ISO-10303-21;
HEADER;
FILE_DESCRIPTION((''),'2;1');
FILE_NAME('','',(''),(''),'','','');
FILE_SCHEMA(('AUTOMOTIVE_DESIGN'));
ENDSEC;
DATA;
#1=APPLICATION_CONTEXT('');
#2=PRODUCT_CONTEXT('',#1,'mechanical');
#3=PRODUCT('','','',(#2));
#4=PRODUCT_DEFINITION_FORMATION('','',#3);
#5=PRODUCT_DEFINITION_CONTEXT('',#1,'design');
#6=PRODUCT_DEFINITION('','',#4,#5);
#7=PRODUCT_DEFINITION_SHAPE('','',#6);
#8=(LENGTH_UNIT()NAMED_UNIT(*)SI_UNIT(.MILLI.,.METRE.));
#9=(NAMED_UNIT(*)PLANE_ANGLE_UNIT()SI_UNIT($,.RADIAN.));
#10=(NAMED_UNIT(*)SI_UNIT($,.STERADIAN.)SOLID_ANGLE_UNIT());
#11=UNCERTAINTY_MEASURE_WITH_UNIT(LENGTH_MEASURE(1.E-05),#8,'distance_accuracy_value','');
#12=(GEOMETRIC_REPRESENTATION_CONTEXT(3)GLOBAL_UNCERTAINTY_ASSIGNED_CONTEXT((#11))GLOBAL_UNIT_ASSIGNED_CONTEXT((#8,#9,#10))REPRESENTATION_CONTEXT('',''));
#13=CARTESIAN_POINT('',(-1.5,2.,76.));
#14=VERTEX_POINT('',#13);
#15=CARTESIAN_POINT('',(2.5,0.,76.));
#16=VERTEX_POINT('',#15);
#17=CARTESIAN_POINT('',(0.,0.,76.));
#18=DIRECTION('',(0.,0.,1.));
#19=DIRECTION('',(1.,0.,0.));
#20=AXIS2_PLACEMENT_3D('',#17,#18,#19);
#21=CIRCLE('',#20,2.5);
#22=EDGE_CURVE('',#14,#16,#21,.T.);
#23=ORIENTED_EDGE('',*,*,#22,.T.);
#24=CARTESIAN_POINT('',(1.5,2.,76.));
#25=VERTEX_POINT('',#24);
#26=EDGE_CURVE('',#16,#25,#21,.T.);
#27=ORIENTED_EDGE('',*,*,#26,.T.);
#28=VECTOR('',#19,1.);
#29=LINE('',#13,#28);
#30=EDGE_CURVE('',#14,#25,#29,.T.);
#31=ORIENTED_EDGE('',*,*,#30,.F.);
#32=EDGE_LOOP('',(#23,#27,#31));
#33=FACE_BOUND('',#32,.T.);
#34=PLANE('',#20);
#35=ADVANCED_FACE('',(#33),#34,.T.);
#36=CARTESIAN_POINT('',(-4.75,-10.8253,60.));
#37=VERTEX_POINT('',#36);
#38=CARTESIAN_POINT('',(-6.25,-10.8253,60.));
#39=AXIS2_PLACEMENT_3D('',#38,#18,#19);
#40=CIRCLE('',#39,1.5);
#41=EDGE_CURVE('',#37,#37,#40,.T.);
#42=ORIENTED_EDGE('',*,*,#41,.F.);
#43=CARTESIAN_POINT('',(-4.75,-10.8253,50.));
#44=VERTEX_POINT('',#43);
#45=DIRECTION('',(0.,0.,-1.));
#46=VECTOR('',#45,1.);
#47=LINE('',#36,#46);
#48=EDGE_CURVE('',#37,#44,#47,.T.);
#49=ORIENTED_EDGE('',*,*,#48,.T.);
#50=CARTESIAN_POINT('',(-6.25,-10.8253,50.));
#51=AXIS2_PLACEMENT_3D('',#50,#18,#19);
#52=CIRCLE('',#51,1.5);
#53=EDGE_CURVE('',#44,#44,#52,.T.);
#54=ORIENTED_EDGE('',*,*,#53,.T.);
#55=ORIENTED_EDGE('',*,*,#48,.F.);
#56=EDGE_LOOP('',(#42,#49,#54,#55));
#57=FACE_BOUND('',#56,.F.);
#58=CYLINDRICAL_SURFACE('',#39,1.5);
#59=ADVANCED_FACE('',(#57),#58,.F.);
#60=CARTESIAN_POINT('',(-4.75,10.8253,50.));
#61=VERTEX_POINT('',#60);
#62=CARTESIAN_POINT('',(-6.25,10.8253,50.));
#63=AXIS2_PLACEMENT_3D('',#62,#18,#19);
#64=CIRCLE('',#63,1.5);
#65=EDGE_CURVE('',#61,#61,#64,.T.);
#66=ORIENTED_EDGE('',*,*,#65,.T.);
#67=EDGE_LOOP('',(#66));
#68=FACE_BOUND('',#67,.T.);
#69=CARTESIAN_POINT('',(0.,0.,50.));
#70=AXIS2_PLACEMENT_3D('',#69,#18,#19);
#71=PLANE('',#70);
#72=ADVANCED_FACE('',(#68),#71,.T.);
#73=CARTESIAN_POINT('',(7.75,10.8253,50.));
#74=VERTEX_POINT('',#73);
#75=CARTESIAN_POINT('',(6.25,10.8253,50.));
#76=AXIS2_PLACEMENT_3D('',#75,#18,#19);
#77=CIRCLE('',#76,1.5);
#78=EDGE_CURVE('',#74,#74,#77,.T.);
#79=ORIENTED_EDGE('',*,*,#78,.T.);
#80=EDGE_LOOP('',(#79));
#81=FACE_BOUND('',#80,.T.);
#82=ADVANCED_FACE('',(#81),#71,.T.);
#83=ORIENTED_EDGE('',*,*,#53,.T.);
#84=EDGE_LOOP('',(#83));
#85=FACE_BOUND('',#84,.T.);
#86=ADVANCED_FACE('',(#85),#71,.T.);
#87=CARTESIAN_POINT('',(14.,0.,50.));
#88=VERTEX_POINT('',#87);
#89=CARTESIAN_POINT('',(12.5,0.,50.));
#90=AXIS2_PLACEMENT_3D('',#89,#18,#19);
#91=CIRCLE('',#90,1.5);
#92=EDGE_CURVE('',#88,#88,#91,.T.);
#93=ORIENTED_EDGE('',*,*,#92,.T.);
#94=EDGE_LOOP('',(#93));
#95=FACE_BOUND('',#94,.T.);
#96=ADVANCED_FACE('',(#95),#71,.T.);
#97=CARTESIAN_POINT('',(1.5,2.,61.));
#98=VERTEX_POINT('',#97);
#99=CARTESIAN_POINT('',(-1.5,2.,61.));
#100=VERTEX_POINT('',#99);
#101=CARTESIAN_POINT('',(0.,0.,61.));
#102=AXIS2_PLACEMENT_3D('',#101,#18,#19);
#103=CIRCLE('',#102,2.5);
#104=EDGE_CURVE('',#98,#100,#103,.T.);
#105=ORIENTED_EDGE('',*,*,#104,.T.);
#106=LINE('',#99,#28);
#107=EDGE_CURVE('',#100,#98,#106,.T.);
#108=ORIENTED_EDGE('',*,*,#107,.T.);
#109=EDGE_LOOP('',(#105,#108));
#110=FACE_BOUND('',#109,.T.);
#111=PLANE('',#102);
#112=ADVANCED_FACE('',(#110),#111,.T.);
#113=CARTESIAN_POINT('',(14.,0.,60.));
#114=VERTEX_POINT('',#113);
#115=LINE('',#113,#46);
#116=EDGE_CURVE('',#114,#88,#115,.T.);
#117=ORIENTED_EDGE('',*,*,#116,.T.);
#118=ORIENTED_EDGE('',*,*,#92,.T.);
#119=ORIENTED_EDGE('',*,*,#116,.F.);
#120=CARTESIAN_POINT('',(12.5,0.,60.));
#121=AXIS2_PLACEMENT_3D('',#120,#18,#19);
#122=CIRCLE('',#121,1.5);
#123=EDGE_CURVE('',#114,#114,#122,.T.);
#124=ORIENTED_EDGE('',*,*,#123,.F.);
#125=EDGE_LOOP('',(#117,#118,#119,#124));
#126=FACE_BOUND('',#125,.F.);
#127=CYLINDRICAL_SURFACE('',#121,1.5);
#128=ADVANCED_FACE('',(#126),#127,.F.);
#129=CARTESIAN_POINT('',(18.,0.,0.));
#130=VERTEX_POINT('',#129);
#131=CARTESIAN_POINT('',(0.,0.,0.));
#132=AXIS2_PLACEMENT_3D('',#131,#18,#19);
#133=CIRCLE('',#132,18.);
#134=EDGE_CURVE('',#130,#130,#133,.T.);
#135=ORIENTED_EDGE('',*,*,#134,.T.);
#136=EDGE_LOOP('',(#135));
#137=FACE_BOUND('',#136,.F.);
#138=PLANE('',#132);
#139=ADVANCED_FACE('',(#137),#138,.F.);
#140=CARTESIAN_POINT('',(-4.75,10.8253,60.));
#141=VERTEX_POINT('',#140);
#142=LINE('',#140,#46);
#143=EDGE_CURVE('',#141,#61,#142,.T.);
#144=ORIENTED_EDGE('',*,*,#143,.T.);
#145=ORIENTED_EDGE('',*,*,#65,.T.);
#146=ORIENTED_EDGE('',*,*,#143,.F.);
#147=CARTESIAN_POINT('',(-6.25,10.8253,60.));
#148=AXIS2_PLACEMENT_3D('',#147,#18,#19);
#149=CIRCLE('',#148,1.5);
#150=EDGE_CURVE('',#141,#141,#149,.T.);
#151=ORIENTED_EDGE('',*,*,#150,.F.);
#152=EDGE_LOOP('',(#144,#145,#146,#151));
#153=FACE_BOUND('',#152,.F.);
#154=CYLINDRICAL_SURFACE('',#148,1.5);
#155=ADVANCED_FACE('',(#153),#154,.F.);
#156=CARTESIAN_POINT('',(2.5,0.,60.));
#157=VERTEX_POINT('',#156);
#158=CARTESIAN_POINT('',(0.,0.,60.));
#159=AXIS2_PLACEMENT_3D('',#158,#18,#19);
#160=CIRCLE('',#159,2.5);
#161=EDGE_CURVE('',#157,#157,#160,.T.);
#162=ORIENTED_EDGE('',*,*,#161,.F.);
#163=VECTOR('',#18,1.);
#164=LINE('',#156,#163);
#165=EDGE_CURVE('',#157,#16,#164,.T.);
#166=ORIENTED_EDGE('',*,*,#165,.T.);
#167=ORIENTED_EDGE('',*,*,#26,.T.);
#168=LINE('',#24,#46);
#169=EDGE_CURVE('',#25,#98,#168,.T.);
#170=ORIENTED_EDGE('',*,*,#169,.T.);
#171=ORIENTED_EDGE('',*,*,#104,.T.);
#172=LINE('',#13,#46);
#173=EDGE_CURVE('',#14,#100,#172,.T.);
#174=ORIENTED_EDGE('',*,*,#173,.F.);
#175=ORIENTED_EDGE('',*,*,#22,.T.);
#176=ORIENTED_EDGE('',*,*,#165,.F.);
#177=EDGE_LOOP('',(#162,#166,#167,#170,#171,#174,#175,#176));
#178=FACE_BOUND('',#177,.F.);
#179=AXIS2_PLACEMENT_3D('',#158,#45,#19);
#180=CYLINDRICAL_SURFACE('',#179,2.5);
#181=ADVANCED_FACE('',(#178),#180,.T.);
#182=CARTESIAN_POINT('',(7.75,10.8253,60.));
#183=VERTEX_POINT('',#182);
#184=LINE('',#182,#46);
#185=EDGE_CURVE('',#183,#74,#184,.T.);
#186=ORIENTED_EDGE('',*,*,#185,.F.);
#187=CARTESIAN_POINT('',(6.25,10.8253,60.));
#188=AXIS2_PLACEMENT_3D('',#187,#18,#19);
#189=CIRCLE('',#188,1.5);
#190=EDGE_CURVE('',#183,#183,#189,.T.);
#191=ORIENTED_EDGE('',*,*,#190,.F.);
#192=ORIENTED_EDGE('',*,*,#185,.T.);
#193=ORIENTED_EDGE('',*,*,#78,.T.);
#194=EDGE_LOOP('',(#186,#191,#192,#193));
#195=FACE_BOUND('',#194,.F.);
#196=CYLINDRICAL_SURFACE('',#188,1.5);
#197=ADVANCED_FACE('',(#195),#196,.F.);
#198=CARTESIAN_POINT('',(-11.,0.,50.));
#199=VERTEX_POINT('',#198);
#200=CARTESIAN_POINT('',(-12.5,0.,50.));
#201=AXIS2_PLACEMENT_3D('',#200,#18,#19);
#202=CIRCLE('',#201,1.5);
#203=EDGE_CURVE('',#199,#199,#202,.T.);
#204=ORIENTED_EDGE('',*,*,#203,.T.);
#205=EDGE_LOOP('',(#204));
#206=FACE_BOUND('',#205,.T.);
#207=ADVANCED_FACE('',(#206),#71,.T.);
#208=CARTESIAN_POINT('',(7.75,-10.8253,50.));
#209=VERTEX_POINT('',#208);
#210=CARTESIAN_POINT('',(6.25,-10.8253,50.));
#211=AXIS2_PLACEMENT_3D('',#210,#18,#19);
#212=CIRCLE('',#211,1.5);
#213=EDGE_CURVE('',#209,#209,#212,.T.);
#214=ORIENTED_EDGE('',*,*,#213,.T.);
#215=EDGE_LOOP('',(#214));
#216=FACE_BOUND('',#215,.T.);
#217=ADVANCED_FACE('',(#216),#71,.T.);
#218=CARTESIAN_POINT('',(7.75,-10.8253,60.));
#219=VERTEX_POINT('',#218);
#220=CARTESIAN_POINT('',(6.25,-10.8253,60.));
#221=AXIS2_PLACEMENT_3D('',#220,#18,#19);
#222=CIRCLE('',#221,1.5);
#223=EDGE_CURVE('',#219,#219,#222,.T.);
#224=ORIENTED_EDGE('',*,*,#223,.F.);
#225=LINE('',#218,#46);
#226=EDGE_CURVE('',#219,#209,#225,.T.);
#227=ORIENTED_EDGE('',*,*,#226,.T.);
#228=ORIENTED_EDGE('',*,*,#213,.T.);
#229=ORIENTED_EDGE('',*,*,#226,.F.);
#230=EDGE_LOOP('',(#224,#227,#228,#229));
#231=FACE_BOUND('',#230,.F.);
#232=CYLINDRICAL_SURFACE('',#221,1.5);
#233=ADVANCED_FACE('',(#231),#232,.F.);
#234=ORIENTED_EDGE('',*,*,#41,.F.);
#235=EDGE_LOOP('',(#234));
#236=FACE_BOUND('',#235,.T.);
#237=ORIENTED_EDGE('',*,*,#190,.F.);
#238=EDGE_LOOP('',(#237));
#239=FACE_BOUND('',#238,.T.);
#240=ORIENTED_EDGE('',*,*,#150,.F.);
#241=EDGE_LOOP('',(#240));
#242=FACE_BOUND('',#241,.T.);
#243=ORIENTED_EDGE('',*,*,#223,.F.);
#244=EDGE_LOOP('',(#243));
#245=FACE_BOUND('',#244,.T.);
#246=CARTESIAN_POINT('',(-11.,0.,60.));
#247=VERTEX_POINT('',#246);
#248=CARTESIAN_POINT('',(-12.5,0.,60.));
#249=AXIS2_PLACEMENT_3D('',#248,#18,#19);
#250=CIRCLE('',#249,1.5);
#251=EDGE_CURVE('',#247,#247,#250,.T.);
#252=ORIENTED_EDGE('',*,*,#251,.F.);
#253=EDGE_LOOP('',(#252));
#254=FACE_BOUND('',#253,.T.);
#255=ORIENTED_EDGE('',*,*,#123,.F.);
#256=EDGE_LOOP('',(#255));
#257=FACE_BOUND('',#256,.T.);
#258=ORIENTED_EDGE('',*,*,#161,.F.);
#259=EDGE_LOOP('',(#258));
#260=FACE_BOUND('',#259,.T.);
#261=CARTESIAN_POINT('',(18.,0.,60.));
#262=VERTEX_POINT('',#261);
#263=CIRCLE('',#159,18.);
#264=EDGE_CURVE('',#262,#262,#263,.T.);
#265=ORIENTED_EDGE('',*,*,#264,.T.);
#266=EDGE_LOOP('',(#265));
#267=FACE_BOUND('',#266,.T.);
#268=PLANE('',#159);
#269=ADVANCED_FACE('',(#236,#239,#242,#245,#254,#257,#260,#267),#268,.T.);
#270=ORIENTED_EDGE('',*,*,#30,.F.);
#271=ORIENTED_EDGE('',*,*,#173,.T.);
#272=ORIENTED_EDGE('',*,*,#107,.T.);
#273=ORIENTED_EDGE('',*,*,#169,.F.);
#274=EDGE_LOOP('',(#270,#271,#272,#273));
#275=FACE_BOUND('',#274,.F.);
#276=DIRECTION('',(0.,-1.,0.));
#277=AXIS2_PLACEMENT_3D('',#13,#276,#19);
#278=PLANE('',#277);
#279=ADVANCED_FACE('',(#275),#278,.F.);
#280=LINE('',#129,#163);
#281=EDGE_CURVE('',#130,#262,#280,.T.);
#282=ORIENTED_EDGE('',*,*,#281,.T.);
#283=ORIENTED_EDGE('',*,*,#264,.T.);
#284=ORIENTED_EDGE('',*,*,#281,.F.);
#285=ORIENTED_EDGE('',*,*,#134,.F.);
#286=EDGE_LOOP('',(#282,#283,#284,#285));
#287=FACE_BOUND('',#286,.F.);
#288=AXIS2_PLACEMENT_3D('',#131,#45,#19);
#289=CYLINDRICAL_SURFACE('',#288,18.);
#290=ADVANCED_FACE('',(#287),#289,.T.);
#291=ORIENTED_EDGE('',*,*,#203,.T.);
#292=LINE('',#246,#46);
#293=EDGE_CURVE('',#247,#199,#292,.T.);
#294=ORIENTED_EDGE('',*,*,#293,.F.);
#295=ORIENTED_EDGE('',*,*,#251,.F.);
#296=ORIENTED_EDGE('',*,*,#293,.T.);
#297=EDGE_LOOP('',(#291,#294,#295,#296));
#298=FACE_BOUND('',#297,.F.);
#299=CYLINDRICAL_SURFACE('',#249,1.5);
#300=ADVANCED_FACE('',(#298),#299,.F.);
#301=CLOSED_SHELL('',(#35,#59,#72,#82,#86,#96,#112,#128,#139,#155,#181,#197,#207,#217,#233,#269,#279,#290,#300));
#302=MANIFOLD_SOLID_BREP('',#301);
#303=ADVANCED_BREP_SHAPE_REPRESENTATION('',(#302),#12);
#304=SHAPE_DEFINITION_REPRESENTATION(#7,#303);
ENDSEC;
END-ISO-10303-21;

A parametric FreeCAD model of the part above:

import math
import FreeCAD as App
import Part
import Sketcher
from FreeCAD import Vector
Q = App.Units.Quantity

doc = App.newDocument("Part")
body = doc.addObject("PartDesign::Body", "Body")

# Sketch on XY plane
sketch1 = body.newObject("Sketcher::SketchObject", "Sketch")
sketch1.AttachmentSupport = (doc.getObject("XY_Plane"), [""])
sketch1.MapMode = "FlatFace"
sketch1.addGeometry(Part.Circle(Vector(0, 0, 0), Vector(0, 0, 1), 18), False)
sketch1.addConstraint(Sketcher.Constraint("Coincident", 0, 3, -1, 1))
sketch1.addConstraint(Sketcher.Constraint("Diameter", 0, Q("36 mm")))
pad1 = body.newObject("PartDesign::Pad", "Pad")
pad1.Profile = sketch1
pad1.Length = 60

# Sketch on XY plane
sketch2 = body.newObject("Sketcher::SketchObject", "Sketch001")
sketch2.AttachmentSupport = (doc.getObject("XY_Plane"), [""])
sketch2.MapMode = "FlatFace"
sketch2.AttachmentOffset = App.Placement(Vector(0, 0, 60), App.Rotation())
sketch2.addGeometry(Part.Circle(Vector(0, 0, 0), Vector(0, 0, 1), 2.5), False)
sketch2.addConstraint(Sketcher.Constraint("Coincident", 0, 3, -1, 1))
sketch2.addConstraint(Sketcher.Constraint("Diameter", 0, Q("5 mm")))
pad2 = body.newObject("PartDesign::Pad", "Pad001")
pad2.Profile = sketch2
pad2.Length = 16

# Sketch on XY plane
sketch3 = body.newObject("Sketcher::SketchObject", "Sketch002")
sketch3.AttachmentSupport = (doc.getObject("XY_Plane"), [""])
sketch3.MapMode = "FlatFace"
sketch3.AttachmentOffset = App.Placement(Vector(0, 0, 76), App.Rotation())
sketch3.addGeometry(Part.LineSegment(Vector(-1.5, 2, 0), Vector(1.5, 2, 0)), False)
sketch3.addGeometry(Part.ArcOfCircle(Part.Circle(Vector(0, 0, 0), Vector(0, 0, 1), 2.5), math.radians(53), math.radians(127)), False)
sketch3.addConstraint(Sketcher.Constraint("Coincident", 0, 1, 1, 2))
sketch3.addConstraint(Sketcher.Constraint("Coincident", 1, 1, 0, 2))
sketch3.addConstraint(Sketcher.Constraint("Horizontal", 0))
sketch3.addConstraint(Sketcher.Constraint("Coincident", 1, 3, -1, 1))
sketch3.addConstraint(Sketcher.Constraint("Radius", 1, Q("2.5 mm")))
sketch3.addConstraint(Sketcher.Constraint("DistanceX", 0, 1, 0, 2, Q("3 mm")))
pocket1 = body.newObject("PartDesign::Pocket", "Pocket")
pocket1.Profile = sketch3
pocket1.Length = 15

# Sketch on XY plane
sketch4 = body.newObject("Sketcher::SketchObject", "Sketch003")
sketch4.AttachmentSupport = (doc.getObject("XY_Plane"), [""])
sketch4.MapMode = "FlatFace"
sketch4.AttachmentOffset = App.Placement(Vector(0, 0, 60), App.Rotation())
sketch4.addGeometry(Part.Circle(Vector(-12.5, 0, 0), Vector(0, 0, 1), 1.5), False)
sketch4.addGeometry(Part.Circle(Vector(-6.2, -10.8, 0), Vector(0, 0, 1), 1.5), False)
sketch4.addGeometry(Part.Circle(Vector(6.2, -10.8, 0), Vector(0, 0, 1), 1.5), False)
sketch4.addGeometry(Part.Circle(Vector(12.5, 0, 0), Vector(0, 0, 1), 1.5), False)
sketch4.addGeometry(Part.Circle(Vector(6.2, 10.8, 0), Vector(0, 0, 1), 1.5), False)
sketch4.addGeometry(Part.Circle(Vector(-6.2, 10.8, 0), Vector(0, 0, 1), 1.5), False)
sketch4.addConstraint(Sketcher.Constraint("Equal", 0, 1))
sketch4.addConstraint(Sketcher.Constraint("Equal", 1, 2))
sketch4.addConstraint(Sketcher.Constraint("Equal", 2, 3))
sketch4.addConstraint(Sketcher.Constraint("Equal", 3, 4))
sketch4.addConstraint(Sketcher.Constraint("Equal", 4, 5))
sketch4.addConstraint(Sketcher.Constraint("Symmetric", 0, 3, 3, 3, -1, 1))
sketch4.addConstraint(Sketcher.Constraint("Symmetric", 1, 3, 4, 3, -1, 1))
sketch4.addConstraint(Sketcher.Constraint("Symmetric", 2, 3, 5, 3, -1, 1))
sketch4.addConstraint(Sketcher.Constraint("Symmetric", 1, 3, 2, 3, -2))
sketch4.addConstraint(Sketcher.Constraint("PointOnObject", 0, 3, -1))
sketch4.addConstraint(Sketcher.Constraint("Diameter", 0, Q("3 mm")))
sketch4.addConstraint(Sketcher.Constraint("DistanceX", 0, 3, -1, 1, Q("12.5 mm")))
sketch4.addConstraint(Sketcher.Constraint("DistanceX", 1, 3, 2, 3, Q("12.5 mm")))
sketch4.addConstraint(Sketcher.Constraint("DistanceY", 1, 3, -1, 1, Q("10.8253 mm")))
pocket2 = body.newObject("PartDesign::Pocket", "Pocket001")
pocket2.Profile = sketch4
pocket2.Length = 10

doc.recompute()
